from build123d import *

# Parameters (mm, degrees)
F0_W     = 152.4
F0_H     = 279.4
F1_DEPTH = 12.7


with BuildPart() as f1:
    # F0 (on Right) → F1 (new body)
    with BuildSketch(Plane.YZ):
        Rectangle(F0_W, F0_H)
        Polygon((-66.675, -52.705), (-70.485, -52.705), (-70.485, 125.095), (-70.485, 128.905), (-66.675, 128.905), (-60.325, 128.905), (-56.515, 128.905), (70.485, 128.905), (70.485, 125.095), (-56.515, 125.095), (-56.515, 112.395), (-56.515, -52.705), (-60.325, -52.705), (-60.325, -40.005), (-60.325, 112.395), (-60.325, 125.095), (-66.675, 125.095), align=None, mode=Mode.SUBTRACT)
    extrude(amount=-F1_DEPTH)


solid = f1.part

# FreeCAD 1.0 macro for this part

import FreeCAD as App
import Part
import Sketcher

V = App.Vector
Q = App.Units.Quantity

doc = App.newDocument("Part")
params = doc.addObject("Spreadsheet::Sheet", "Params")
for row, (alias, value) in enumerate([
    ("sketch1_width", "6 in"),
    ("sketch1_width2", "5 in"),
    ("sketch1_height", "11 in"),
    ("sketch1_height2", "7 in"),
    ("sketch1_width3", "0.15 in"),
    ("pad1_length", "0.5 in"),
], start=1):
    params.set(f"A{row}", alias)
    params.set(f"B{row}", "=" + value)
    params.setAlias(f"B{row}", alias)

body = doc.addObject("PartDesign::Body", "Body")

# Sketch on YZ plane
sketch1 = body.newObject("Sketcher::SketchObject", "Sketch")
sketch1.AttachmentSupport = (doc.getObject("YZ_Plane"), [""])
sketch1.MapMode = "FlatFace"
sketch1.addGeometry([
    Part.LineSegment(V(-76.2, 139.7, 0), V(-76.2, -139.7, 0)),  # 0
    Part.LineSegment(V(-76.2, -139.7, 0), V(76.2, -139.7, 0)),  # 1
    Part.LineSegment(V(76.2, -139.7, 0), V(76.2, 139.7, 0)),  # 2
    Part.LineSegment(V(76.2, 139.7, 0), V(-76.2, 139.7, 0)),  # 3
    Part.LineSegment(V(-66.7, 125.1, 0), V(-66.7, -52.7, 0)),  # 4
    Part.LineSegment(V(-66.7, -52.7, 0), V(-70.5, -52.7, 0)),  # 5
    Part.LineSegment(V(-70.5, -52.7, 0), V(-70.5, 128.9, 0)),  # 6
    Part.LineSegment(V(-70.5, 128.9, 0), V(70.5, 128.9, 0)),  # 7
    Part.LineSegment(V(70.5, 128.9, 0), V(70.5, 125.1, 0)),  # 8
    Part.LineSegment(V(70.5, 125.1, 0), V(-56.5, 125.1, 0)),  # 9
    Part.LineSegment(V(-56.5, 125.1, 0), V(-56.5, -52.7, 0)),  # 10
    Part.LineSegment(V(-56.5, -52.7, 0), V(-60.3, -52.7, 0)),  # 11
    Part.LineSegment(V(-60.3, -52.7, 0), V(-60.3, 125.1, 0)),  # 12
    Part.LineSegment(V(-60.3, 125.1, 0), V(-66.7, 125.1, 0)),  # 13
], False)
sketch1.addConstraint([
    Sketcher.Constraint("Coincident", 0, 2, 1, 1),
    Sketcher.Constraint("Coincident", 1, 2, 2, 1),
    Sketcher.Constraint("Coincident", 2, 2, 3, 1),
    Sketcher.Constraint("Coincident", 3, 2, 0, 1),
    Sketcher.Constraint("Coincident", 4, 2, 5, 1),
    Sketcher.Constraint("Coincident", 5, 2, 6, 1),
    Sketcher.Constraint("Coincident", 6, 2, 7, 1),
    Sketcher.Constraint("Coincident", 7, 2, 8, 1),
    Sketcher.Constraint("Coincident", 8, 2, 9, 1),
    Sketcher.Constraint("Coincident", 9, 2, 10, 1),
    Sketcher.Constraint("Coincident", 10, 2, 11, 1),
    Sketcher.Constraint("Coincident", 11, 2, 12, 1),
    Sketcher.Constraint("Coincident", 12, 2, 13, 1),
    Sketcher.Constraint("Coincident", 13, 2, 4, 1),
    Sketcher.Constraint("Vertical", 0),
    Sketcher.Constraint("Horizontal", 1),
    Sketcher.Constraint("Vertical", 2),
    Sketcher.Constraint("Horizontal", 3),
    Sketcher.Constraint("Vertical", 4),
    Sketcher.Constraint("Horizontal", 5),
    Sketcher.Constraint("Vertical", 6),
    Sketcher.Constraint("Horizontal", 7),
    Sketcher.Constraint("Vertical", 8),
    Sketcher.Constraint("Horizontal", 9),
    Sketcher.Constraint("Vertical", 10),
    Sketcher.Constraint("Horizontal", 11),
    Sketcher.Constraint("Vertical", 12),
    Sketcher.Constraint("Horizontal", 13),
    Sketcher.Constraint("Symmetric", 0, 2, 2, 2, -1, 1),
    Sketcher.Constraint("Horizontal", 5, 2, 10, 2),
    Sketcher.Constraint("Horizontal", 9, 2, 12, 2),
    Sketcher.Constraint("Equal", 5, 11),
    Sketcher.Constraint("Equal", 11, 8),
    Sketcher.Constraint("DistanceX", 1, 1, 1, 2, Q("6 in")),
    Sketcher.Constraint("DistanceX", 9, 2, 9, 1, Q("5 in")),
    Sketcher.Constraint("DistanceY", 0, 2, 0, 1, Q("11 in")),
    Sketcher.Constraint("DistanceY", 4, 2, 4, 1, Q("7 in")),
    Sketcher.Constraint("DistanceX", 5, 2, 5, 1, Q("0.15 in")),
    Sketcher.Constraint("DistanceX", 7, 1, 7, 2, Q("5.55 in")),
    Sketcher.Constraint("DistanceX", 4, 2, -1, 1, Q("2.625 in")),
    Sketcher.Constraint("DistanceY", 4, 2, -1, 1, Q("2.075 in")),
])
sketch1.setExpression("Constraints[33]", "Params.sketch1_width")
sketch1.setExpression("Constraints[34]", "Params.sketch1_width2")
sketch1.setExpression("Constraints[35]", "Params.sketch1_height")
sketch1.setExpression("Constraints[36]", "Params.sketch1_height2")
sketch1.setExpression("Constraints[37]", "Params.sketch1_width3")
pad1 = body.newObject("PartDesign::Pad", "Pad")
pad1.Profile = sketch1
pad1.setExpression("Length", "Params.pad1_length")
pad1.Reversed = True

doc.recompute()
